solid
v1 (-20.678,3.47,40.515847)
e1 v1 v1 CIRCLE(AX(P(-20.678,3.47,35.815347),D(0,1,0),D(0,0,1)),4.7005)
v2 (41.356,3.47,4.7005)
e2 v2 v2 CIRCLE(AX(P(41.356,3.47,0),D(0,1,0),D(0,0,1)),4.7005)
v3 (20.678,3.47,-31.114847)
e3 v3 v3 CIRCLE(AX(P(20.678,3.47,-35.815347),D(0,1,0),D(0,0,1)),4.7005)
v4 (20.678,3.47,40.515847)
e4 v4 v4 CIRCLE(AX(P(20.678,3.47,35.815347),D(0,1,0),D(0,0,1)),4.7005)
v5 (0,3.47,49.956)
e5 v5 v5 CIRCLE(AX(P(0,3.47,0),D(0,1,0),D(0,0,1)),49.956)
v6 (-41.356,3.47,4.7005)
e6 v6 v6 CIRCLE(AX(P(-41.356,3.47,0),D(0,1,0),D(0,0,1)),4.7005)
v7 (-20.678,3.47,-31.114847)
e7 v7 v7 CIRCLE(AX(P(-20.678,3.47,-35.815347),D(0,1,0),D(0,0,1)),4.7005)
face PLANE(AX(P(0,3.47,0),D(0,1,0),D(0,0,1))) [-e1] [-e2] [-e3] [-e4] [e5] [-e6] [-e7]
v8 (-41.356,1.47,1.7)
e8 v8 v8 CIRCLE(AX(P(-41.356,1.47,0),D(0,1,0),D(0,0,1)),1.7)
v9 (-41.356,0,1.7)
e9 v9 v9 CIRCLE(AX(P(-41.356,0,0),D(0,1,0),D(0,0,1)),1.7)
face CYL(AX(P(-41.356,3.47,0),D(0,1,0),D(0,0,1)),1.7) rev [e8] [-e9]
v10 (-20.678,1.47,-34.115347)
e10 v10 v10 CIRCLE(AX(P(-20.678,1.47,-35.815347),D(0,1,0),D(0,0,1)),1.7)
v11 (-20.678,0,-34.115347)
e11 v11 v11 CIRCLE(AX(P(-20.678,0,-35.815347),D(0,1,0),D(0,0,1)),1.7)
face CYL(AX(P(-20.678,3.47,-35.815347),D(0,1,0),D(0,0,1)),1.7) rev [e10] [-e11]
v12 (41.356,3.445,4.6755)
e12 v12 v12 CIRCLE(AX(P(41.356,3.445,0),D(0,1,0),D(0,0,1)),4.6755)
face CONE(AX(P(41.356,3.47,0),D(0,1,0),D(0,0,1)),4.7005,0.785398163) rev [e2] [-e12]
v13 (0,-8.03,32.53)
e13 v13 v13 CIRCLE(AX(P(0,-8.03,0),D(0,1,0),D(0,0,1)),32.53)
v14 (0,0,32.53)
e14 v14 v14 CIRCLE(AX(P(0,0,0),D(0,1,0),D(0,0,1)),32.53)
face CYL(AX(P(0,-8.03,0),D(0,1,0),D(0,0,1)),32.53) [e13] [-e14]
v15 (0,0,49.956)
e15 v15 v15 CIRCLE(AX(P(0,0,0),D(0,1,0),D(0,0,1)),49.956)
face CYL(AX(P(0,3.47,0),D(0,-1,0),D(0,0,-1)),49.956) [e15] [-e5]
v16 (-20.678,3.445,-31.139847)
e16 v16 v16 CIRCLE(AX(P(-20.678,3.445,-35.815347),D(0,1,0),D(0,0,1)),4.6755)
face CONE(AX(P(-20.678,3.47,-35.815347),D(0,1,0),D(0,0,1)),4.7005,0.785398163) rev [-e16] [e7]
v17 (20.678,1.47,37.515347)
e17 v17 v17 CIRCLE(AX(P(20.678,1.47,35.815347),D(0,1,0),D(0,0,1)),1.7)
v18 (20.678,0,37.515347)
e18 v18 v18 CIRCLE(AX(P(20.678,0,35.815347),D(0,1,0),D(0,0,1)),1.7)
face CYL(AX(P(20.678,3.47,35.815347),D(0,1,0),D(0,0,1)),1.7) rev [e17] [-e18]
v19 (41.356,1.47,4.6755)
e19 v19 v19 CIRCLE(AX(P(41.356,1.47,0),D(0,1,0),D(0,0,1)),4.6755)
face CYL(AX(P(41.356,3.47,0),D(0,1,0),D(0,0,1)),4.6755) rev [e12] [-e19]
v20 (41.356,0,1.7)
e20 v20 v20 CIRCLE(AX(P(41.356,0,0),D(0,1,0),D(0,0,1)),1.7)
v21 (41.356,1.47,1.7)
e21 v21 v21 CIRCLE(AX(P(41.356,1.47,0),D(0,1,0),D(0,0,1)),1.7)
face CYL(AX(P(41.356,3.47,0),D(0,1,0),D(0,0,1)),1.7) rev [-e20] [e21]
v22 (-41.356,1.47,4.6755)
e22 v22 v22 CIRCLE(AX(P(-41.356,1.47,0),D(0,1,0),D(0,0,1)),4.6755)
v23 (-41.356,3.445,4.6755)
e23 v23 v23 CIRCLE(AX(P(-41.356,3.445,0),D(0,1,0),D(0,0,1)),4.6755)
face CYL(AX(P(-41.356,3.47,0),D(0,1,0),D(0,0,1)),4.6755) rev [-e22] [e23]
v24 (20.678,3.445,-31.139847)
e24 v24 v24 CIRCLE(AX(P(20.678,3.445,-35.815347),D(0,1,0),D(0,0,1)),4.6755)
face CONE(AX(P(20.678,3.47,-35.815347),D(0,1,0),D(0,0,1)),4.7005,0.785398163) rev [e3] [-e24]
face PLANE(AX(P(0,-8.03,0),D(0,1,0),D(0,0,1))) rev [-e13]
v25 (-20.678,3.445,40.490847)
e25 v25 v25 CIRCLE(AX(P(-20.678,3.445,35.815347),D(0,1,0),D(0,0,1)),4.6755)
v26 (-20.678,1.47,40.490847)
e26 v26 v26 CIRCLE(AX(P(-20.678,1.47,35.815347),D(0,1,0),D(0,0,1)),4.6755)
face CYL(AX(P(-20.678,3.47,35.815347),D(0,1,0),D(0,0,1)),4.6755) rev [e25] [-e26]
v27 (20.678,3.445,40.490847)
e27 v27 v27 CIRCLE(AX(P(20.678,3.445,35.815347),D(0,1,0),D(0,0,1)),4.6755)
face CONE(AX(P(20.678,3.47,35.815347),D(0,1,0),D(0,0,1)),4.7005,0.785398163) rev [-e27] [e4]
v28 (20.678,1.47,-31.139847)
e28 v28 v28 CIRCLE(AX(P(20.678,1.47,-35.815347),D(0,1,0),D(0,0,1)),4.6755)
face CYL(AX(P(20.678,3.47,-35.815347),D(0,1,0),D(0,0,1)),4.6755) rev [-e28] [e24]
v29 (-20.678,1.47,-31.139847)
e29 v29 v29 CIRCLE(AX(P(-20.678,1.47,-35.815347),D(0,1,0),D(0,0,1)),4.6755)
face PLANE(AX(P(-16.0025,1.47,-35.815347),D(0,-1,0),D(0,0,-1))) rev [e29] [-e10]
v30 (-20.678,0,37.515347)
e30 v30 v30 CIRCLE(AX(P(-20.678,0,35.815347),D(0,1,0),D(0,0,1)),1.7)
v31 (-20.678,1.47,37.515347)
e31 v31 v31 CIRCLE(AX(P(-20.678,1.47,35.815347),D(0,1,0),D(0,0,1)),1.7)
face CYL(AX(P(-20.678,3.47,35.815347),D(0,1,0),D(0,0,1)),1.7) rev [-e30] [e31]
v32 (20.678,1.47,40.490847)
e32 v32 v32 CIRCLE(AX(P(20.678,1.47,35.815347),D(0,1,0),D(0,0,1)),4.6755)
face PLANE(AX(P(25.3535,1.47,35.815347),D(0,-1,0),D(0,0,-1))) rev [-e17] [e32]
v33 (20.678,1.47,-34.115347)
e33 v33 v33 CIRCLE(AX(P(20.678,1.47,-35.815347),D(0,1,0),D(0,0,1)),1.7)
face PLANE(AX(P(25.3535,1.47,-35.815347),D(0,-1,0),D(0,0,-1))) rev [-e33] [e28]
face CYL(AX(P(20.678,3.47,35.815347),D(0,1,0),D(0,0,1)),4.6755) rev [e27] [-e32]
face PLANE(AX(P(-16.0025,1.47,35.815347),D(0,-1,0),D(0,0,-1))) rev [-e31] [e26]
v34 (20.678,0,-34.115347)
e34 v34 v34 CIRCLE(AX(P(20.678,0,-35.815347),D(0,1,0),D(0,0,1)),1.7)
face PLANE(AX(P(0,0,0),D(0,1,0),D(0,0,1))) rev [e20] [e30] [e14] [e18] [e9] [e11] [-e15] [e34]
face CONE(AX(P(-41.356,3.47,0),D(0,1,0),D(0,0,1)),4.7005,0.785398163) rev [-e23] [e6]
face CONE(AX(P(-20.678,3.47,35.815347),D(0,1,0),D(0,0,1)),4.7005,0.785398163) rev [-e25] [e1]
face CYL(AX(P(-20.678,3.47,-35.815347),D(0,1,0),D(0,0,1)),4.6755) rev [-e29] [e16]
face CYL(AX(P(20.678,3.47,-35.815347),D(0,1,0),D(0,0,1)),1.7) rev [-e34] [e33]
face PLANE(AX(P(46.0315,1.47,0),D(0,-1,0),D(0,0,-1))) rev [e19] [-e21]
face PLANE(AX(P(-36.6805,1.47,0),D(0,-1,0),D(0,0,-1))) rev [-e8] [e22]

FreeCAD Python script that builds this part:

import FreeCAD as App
import Part
import Sketcher
from FreeCAD import Vector
Q = App.Units.Quantity

doc = App.newDocument("Part")
body = doc.addObject("PartDesign::Body", "Body")

# Sketch on XZ plane
sketch1 = body.newObject("Sketcher::SketchObject", "Sketch")
sketch1.AttachmentSupport = (doc.getObject("XZ_Plane"), [""])
sketch1.MapMode = "FlatFace"
sketch1.addGeometry(Part.Circle(Vector(0, 0, 0), Vector(0, 0, 1), 33), False)
sketch1.addConstraint(Sketcher.Constraint("Coincident", 0, 3, -1, 1))
sketch1.addConstraint(Sketcher.Constraint("Diameter", 0, Q("65.06 mm")))
pad1 = body.newObject("PartDesign::Pad", "Pad")
pad1.Profile = sketch1
pad1.Length = 8.03

# Sketch on XZ plane
sketch2 = body.newObject("Sketcher::SketchObject", "Sketch001")
sketch2.AttachmentSupport = (doc.getObject("XZ_Plane"), [""])
sketch2.MapMode = "FlatFace"
sketch2.addGeometry(Part.Circle(Vector(0, 0, 0), Vector(0, 0, 1), 50), False)
sketch2.addConstraint(Sketcher.Constraint("Coincident", 0, 3, -1, 1))
sketch2.addConstraint(Sketcher.Constraint("Diameter", 0, Q("99.912 mm")))
pad2 = body.newObject("PartDesign::Pad", "Pad001")
pad2.Profile = sketch2
pad2.Length = 3.47
pad2.Reversed = True

# Sketch on YZ plane
sketch3 = body.newObject("Sketcher::SketchObject", "Sketch002")
sketch3.AttachmentSupport = (doc.getObject("YZ_Plane"), [""])
sketch3.MapMode = "FlatFace"
sketch3.AttachmentOffset = App.Placement(Vector(0, 0, -41.356), App.Rotation())
sketch3.addGeometry(Part.LineSegment(Vector(-8.03, 0, 0), Vector(3.47, 0, 0)), False)
sketch3.addGeometry(Part.LineSegment(Vector(3.47, 0, 0), Vector(3.47, 4.7, 0)), False)
sketch3.addGeometry(Part.LineSegment(Vector(3.47, 4.7, 0), Vector(3.445, 4.676, 0)), False)
sketch3.addGeometry(Part.LineSegment(Vector(3.445, 4.676, 0), Vector(1.47, 4.676, 0)), False)
sketch3.addGeometry(Part.LineSegment(Vector(1.47, 4.676, 0), Vector(1.47, 1.7, 0)), False)
sketch3.addGeometry(Part.LineSegment(Vector(1.47, 1.7, 0), Vector(-8.03, 1.7, 0)), False)
sketch3.addGeometry(Part.LineSegment(Vector(-8.03, 1.7, 0), Vector(-8.03, 0, 0)), False)
sketch3.addConstraint(Sketcher.Constraint("Coincident", 0, 2, 1, 1))
sketch3.addConstraint(Sketcher.Constraint("Coincident", 1, 2, 2, 1))
sketch3.addConstraint(Sketcher.Constraint("Coincident", 2, 2, 3, 1))
sketch3.addConstraint(Sketcher.Constraint("Coincident", 3, 2, 4, 1))
sketch3.addConstraint(Sketcher.Constraint("Coincident", 4, 2, 5, 1))
sketch3.addConstraint(Sketcher.Constraint("Coincident", 5, 2, 6, 1))
sketch3.addConstraint(Sketcher.Constraint("Coincident", 6, 2, 0, 1))
sketch3.addConstraint(Sketcher.Constraint("Horizontal", 0))
sketch3.addConstraint(Sketcher.Constraint("Vertical", 1))
sketch3.addConstraint(Sketcher.Constraint("Horizontal", 3))
sketch3.addConstraint(Sketcher.Constraint("Vertical", 4))
sketch3.addConstraint(Sketcher.Constraint("Horizontal", 5))
sketch3.addConstraint(Sketcher.Constraint("Vertical", 6))
sketch3.addConstraint(Sketcher.Constraint("PointOnObject", 0, 2, -1))
sketch3.addConstraint(Sketcher.Constraint("Angle", 2, Q("-135 deg")))
sketch3.addConstraint(Sketcher.Constraint("DistanceX", 0, 1, 0, 2, Q("11.5 mm")))
sketch3.addConstraint(Sketcher.Constraint("DistanceX", 5, 2, 5, 1, Q("9.5 mm")))
sketch3.addConstraint(Sketcher.Constraint("DistanceY", 6, 2, 6, 1, Q("1.7 mm")))
sketch3.addConstraint(Sketcher.Constraint("DistanceX", 3, 2, 3, 1, Q("1.975 mm")))
sketch3.addConstraint(Sketcher.Constraint("DistanceX", -1, 1, 0, 2, Q("3.47 mm")))
sketch3.addConstraint(Sketcher.Constraint("DistanceY", 1, 1, 1, 2, Q("4.7005 mm")))
groove = body.newObject("PartDesign::Groove", "Groove")
groove.Profile = sketch3
groove.ReferenceAxis = (sketch3, ["H_Axis"])
groove.Angle = 360
doc.recompute()

datumline = body.newObject("PartDesign::Line", "DatumLine")
datumline.Placement = App.Placement(Vector(0, 0, 0), App.Rotation(Vector(0, 0, 1), Vector(0.5, 0, -0.866025404)))
linearpattern = body.newObject("PartDesign::LinearPattern", "LinearPattern")
linearpattern.Originals = [groove]
linearpattern.Direction = (datumline, [""])
linearpattern.Mode = "offset"
linearpattern.Offset = 41.356
linearpattern.Occurrences = 2
body.Tip = linearpattern
doc.recompute()

datumline2 = body.newObject("PartDesign::Line", "DatumLine001")
datumline2.Placement = App.Placement(Vector(0, 0, 0), App.Rotation(Vector(0, 0, 1), Vector(0.866025404, 0, -0.5)))
linearpattern2 = body.newObject("PartDesign::LinearPattern", "LinearPattern001")
linearpattern2.Originals = [groove]
linearpattern2.Direction = (datumline2, [""])
linearpattern2.Mode = "offset"
linearpattern2.Offset = 71.630693
linearpattern2.Occurrences = 2
body.Tip = linearpattern2
doc.recompute()

linearpattern3 = body.newObject("PartDesign::LinearPattern", "LinearPattern002")
linearpattern3.Originals = [groove]
linearpattern3.Direction = (doc.getObject("X_Axis"), [""])
linearpattern3.Mode = "offset"
linearpattern3.Offset = 82.712
linearpattern3.Occurrences = 2
body.Tip = linearpattern3
doc.recompute()

datumline3 = body.newObject("PartDesign::Line", "DatumLine002")
datumline3.Placement = App.Placement(Vector(0, 0, 0), App.Rotation(Vector(0, 0, 1), Vector(0.866025404, 0, 0.5)))
linearpattern4 = body.newObject("PartDesign::LinearPattern", "LinearPattern003")
linearpattern4.Originals = [groove]
linearpattern4.Direction = (datumline3, [""])
linearpattern4.Mode = "offset"
linearpattern4.Offset = 71.630693
linearpattern4.Occurrences = 2
body.Tip = linearpattern4
doc.recompute()

datumline4 = body.newObject("PartDesign::Line", "DatumLine003")
datumline4.Placement = App.Placement(Vector(0, 0, 0), App.Rotation(Vector(0, 0, 1), Vector(0.5, 0, 0.866025404)))
linearpattern5 = body.newObject("PartDesign::LinearPattern", "LinearPattern004")
linearpattern5.Originals = [groove]
linearpattern5.Direction = (datumline4, [""])
linearpattern5.Mode = "offset"
linearpattern5.Offset = 41.356
linearpattern5.Occurrences = 2
body.Tip = linearpattern5

doc.recompute()
